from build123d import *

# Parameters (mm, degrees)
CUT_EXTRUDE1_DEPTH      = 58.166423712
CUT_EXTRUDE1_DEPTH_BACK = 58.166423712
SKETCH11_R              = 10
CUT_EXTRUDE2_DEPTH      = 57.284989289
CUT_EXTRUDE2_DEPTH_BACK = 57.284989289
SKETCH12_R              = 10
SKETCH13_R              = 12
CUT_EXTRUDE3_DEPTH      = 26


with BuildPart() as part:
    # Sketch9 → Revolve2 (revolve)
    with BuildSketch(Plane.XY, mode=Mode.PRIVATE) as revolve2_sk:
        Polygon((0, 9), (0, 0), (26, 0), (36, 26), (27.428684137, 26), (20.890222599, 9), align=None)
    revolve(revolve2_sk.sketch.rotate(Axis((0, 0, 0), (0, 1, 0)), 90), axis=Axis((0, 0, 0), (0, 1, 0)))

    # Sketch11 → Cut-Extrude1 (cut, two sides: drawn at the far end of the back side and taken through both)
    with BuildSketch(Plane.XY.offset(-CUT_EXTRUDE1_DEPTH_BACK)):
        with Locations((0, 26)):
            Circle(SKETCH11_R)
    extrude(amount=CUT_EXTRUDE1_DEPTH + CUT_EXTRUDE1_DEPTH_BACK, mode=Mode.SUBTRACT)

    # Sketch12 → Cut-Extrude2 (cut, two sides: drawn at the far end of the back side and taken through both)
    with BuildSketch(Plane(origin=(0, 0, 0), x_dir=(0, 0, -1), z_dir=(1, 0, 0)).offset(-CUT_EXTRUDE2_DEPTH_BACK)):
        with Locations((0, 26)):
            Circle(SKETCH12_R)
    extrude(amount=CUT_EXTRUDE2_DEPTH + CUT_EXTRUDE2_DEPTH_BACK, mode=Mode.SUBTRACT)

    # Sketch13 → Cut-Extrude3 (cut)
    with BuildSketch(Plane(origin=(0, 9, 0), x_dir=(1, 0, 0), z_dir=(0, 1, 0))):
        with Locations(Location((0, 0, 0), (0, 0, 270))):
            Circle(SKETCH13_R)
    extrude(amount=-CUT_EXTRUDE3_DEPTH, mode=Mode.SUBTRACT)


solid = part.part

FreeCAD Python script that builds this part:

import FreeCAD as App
import Part
import Sketcher
from FreeCAD import Vector

doc = App.newDocument("Part")
params = doc.addObject("Spreadsheet::Sheet", "Params")
for row, (alias, value) in enumerate([
    ("sketch1_width", "26 mm"),
    ("sketch1_height", "9 mm"),
    ("revolution_angle", "360 deg"),
    ("sketch2_diameter", "20 mm"),
    ("sketch3_diameter", "20 mm"),
    ("sketch4_diameter", "24 mm"),
    ("pocket3_length", "26 mm"),
], start=1):
    params.set(f"A{row}", alias)
    params.set(f"B{row}", "=" + value)
    params.setAlias(f"B{row}", alias)

body = doc.addObject("PartDesign::Body", "Body")

sketch1 = doc.addObject("Sketcher::SketchObject", "Sketch")
body.addObject(sketch1)
sketch1.AttachmentSupport = (doc.XY_Plane, [""])
sketch1.MapMode = "FlatFace"
sketch1.addGeometry(Part.LineSegment(Vector(0, 9, 0), Vector(0, 0, 0)), False)
sketch1.addGeometry(Part.LineSegment(Vector(0, 0, 0), Vector(26, 0, 0)), False)
sketch1.addGeometry(Part.LineSegment(Vector(26, 0, 0), Vector(36, 26, 0)), False)
sketch1.addGeometry(Part.LineSegment(Vector(36, 26, 0), Vector(27, 26, 0)), False)
sketch1.addGeometry(Part.LineSegment(Vector(27, 26, 0), Vector(21, 9, 0)), False)
sketch1.addGeometry(Part.LineSegment(Vector(21, 9, 0), Vector(0, 9, 0)), False)
sketch1.addConstraint(Sketcher.Constraint("Coincident", 0, 2, 1, 1))
sketch1.addConstraint(Sketcher.Constraint("Coincident", 1, 2, 2, 1))
sketch1.addConstraint(Sketcher.Constraint("Coincident", 2, 2, 3, 1))
sketch1.addConstraint(Sketcher.Constraint("Coincident", 3, 2, 4, 1))
sketch1.addConstraint(Sketcher.Constraint("Coincident", 4, 2, 5, 1))
sketch1.addConstraint(Sketcher.Constraint("Coincident", 5, 2, 0, 1))
sketch1.addConstraint(Sketcher.Constraint("Vertical", 0))
sketch1.addConstraint(Sketcher.Constraint("Horizontal", 1))
sketch1.addConstraint(Sketcher.Constraint("Horizontal", 3))
sketch1.addConstraint(Sketcher.Constraint("Horizontal", 5))
sketch1.addConstraint(Sketcher.Constraint("Coincident", 0, 2, -1, 1))
sketch1.addConstraint(Sketcher.Constraint("Parallel", 2, 4))
sketch1.addConstraint(Sketcher.Constraint("DistanceX", 1, 1, 1, 2, 26.0))
sketch1.addConstraint(Sketcher.Constraint("DistanceY", 0, 2, 0, 1, 9.0))
sketch1.addConstraint(Sketcher.Constraint("DistanceX", -1, 1, 2, 2, 36.0))
sketch1.addConstraint(Sketcher.Constraint("DistanceY", -1, 1, 2, 2, 26.0))
sketch1.addConstraint(Sketcher.Constraint("DistanceX", 3, 2, 3, 1, 8.571316))
sketch1.setExpression("Constraints[12]", "Params.sketch1_width")
sketch1.setExpression("Constraints[13]", "Params.sketch1_height")
revolution = doc.addObject("PartDesign::Revolution", "Revolution")
body.addObject(revolution)
revolution.Profile = sketch1
revolution.ReferenceAxis = (sketch1, ["V_Axis"])
revolution.setExpression("Angle", "Params.revolution_angle")

sketch2 = doc.addObject("Sketcher::SketchObject", "Sketch001")
body.addObject(sketch2)
sketch2.AttachmentSupport = (doc.XY_Plane, [""])
sketch2.MapMode = "FlatFace"
sketch2.addGeometry(Part.Circle(Vector(0, 26, 0), Vector(0, 0, 1), 10), False)
sketch2.addConstraint(Sketcher.Constraint("PointOnObject", 0, 3, -2))
sketch2.addConstraint(Sketcher.Constraint("Diameter", 0, 20.0))
sketch2.addConstraint(Sketcher.Constraint("DistanceY", -1, 1, 0, 3, 26.0))
sketch2.setExpression("Constraints[1]", "Params.sketch2_diameter")
pocket1 = doc.addObject("PartDesign::Pocket", "Pocket")
body.addObject(pocket1)
pocket1.Profile = sketch2
pocket1.Type = "ThroughAll"
pocket1.Midplane = True

sketch3 = doc.addObject("Sketcher::SketchObject", "Sketch002")
body.addObject(sketch3)
sketch3.AttachmentSupport = (doc.YZ_Plane, [""])
sketch3.MapMode = "FlatFace"
sketch3.addGeometry(Part.Circle(Vector(26, 0, 0), Vector(0, 0, 1), 10), False)
sketch3.addConstraint(Sketcher.Constraint("PointOnObject", 0, 3, -1))
sketch3.addConstraint(Sketcher.Constraint("Diameter", 0, 20.0))
sketch3.addConstraint(Sketcher.Constraint("DistanceX", -1, 1, 0, 3, 26.0))
sketch3.setExpression("Constraints[1]", "Params.sketch3_diameter")
pocket2 = doc.addObject("PartDesign::Pocket", "Pocket001")
body.addObject(pocket2)
pocket2.Profile = sketch3
pocket2.Type = "ThroughAll"
pocket2.Midplane = True

sketch4 = doc.addObject("Sketcher::SketchObject", "Sketch003")
body.addObject(sketch4)
sketch4.AttachmentSupport = (doc.XZ_Plane, [""])
sketch4.MapMode = "FlatFace"
sketch4.AttachmentOffset = App.Placement(Vector(0, 0, -9), App.Rotation())
sketch4.addGeometry(Part.Circle(Vector(0, 0, 0), Vector(0, 0, 1), 12), False)
sketch4.addConstraint(Sketcher.Constraint("Coincident", 0, 3, -1, 1))
sketch4.addConstraint(Sketcher.Constraint("Diameter", 0, 24.0))
sketch4.setExpression("Constraints[1]", "Params.sketch4_diameter")
pocket3 = doc.addObject("PartDesign::Pocket", "Pocket002")
body.addObject(pocket3)
pocket3.Profile = sketch4
pocket3.setExpression("Length", "Params.pocket3_length")
pocket3.Reversed = True

doc.recompute()
